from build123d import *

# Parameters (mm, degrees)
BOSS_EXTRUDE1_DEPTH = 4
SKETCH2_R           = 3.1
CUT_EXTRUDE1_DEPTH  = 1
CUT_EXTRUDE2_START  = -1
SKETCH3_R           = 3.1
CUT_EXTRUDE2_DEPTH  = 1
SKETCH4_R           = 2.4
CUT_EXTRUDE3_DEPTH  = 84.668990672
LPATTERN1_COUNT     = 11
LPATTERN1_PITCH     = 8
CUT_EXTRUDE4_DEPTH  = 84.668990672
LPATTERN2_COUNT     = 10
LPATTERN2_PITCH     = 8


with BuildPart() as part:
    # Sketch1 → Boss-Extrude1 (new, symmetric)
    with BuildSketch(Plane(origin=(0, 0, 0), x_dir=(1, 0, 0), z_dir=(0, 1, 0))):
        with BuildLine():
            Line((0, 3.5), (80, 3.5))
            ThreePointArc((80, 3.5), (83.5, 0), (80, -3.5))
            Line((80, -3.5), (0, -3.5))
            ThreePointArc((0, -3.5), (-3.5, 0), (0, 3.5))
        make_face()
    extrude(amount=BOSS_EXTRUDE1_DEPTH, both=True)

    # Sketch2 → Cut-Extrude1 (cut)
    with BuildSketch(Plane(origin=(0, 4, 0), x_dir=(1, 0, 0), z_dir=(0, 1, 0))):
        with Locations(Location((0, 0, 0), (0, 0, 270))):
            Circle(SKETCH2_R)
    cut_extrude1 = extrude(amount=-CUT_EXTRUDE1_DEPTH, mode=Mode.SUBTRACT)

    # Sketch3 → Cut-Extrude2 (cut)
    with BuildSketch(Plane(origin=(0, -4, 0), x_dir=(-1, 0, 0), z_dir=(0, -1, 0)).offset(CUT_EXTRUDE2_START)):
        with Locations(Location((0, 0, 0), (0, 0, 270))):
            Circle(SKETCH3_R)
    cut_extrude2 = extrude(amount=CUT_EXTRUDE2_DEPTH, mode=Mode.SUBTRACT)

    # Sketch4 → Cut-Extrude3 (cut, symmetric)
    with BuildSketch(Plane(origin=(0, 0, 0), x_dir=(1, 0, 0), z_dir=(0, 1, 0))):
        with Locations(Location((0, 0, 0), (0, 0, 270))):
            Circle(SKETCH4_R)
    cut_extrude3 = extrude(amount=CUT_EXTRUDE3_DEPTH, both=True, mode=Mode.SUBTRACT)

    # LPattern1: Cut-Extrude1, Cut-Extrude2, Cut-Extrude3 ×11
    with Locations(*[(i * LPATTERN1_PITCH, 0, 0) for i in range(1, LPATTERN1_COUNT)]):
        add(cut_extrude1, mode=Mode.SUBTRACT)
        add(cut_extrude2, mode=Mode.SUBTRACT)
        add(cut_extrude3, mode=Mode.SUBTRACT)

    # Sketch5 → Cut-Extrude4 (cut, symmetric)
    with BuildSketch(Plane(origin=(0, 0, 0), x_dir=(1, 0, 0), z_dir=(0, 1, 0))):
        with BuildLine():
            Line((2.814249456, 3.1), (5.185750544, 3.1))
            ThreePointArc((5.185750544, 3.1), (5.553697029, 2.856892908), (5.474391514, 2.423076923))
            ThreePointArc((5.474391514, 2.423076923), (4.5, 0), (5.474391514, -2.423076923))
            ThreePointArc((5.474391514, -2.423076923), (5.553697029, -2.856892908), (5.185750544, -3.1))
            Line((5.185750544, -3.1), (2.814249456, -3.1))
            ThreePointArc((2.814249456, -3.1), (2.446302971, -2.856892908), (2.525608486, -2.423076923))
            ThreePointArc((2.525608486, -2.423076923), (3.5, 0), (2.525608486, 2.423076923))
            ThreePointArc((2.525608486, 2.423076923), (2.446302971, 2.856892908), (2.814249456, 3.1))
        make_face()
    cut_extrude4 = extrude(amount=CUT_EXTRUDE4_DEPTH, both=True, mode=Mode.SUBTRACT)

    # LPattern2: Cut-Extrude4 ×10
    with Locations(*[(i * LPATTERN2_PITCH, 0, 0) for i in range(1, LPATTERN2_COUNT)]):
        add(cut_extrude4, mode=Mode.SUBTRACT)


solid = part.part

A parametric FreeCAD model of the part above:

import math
import FreeCAD as App
import Part
import Sketcher
Q = App.Units.Quantity

doc = App.newDocument("Part")
body = doc.addObject("PartDesign::Body", "Body")

sketch1 = body.newObject("Sketcher::SketchObject", "Sketch")
sketch1.AttachmentSupport = (doc.getObject("XZ_Plane"), [""])
sketch1.MapMode = "FlatFace"
sketch1.addGeometry([
    Part.LineSegment(App.Vector(80, -3.5, 0), App.Vector(0, -3.5, 0)),
    Part.ArcOfCircle(Part.Circle(App.Vector(0, 0, 0), App.Vector(0, 0, 1), 3.5), math.radians(90), math.radians(270)),
    Part.LineSegment(App.Vector(0, 3.5, 0), App.Vector(80, 3.5, 0)),
    Part.ArcOfCircle(Part.Circle(App.Vector(80, 0, 0), App.Vector(0, 0, 1), 3.5), math.radians(-90), math.radians(90)),
], False)
sketch1.addConstraint([
    Sketcher.Constraint("Tangent", 0, 2, 1, 2),
    Sketcher.Constraint("Tangent", 1, 1, 2, 1),
    Sketcher.Constraint("Tangent", 2, 2, 3, 2),
    Sketcher.Constraint("Tangent", 3, 1, 0, 1),
    Sketcher.Constraint("Horizontal", 0),
    Sketcher.Constraint("Horizontal", 2),
    Sketcher.Constraint("Coincident", 1, 3, -1, 1),
    Sketcher.Constraint("Radius", 1, Q("3.5 mm")),
    Sketcher.Constraint("DistanceX", 0, 2, 0, 1, Q("80 mm")),
])
pad1 = body.newObject("PartDesign::Pad", "Pad")
pad1.Profile = sketch1
pad1.Length = 8
pad1.Midplane = True

sketch2 = body.newObject("Sketcher::SketchObject", "Sketch001")
sketch2.AttachmentSupport = (doc.getObject("XZ_Plane"), [""])
sketch2.MapMode = "FlatFace"
sketch2.AttachmentOffset = App.Placement(App.Vector(0, 0, -4), App.Rotation())
sketch2.addGeometry(Part.Circle(App.Vector(0, 0, 0), App.Vector(0, 0, 1), 3.1), False)
sketch2.addConstraint([
    Sketcher.Constraint("Coincident", 0, 3, -1, 1),
    Sketcher.Constraint("Diameter", 0, Q("6.2 mm")),
])
pocket1 = body.newObject("PartDesign::Pocket", "Pocket")
pocket1.Profile = sketch2
pocket1.Length = 1
pocket1.Reversed = True

sketch3 = body.newObject("Sketcher::SketchObject", "Sketch002")
sketch3.AttachmentSupport = (doc.getObject("XZ_Plane"), [""])
sketch3.MapMode = "FlatFace"
sketch3.AttachmentOffset = App.Placement(App.Vector(0, 0, 3), App.Rotation())
sketch3.addGeometry(Part.Circle(App.Vector(0, 0, 0), App.Vector(0, 0, 1), 3.1), False)
sketch3.addConstraint([
    Sketcher.Constraint("Coincident", 0, 3, -1, 1),
    Sketcher.Constraint("Diameter", 0, Q("6.2 mm")),
])
pocket2 = body.newObject("PartDesign::Pocket", "Pocket001")
pocket2.Profile = sketch3
pocket2.Length = 1
pocket2.Reversed = True

sketch4 = body.newObject("Sketcher::SketchObject", "Sketch003")
sketch4.AttachmentSupport = (doc.getObject("XZ_Plane"), [""])
sketch4.MapMode = "FlatFace"
sketch4.addGeometry(Part.Circle(App.Vector(0, 0, 0), App.Vector(0, 0, 1), 2.4), False)
sketch4.addConstraint([
    Sketcher.Constraint("Coincident", 0, 3, -1, 1),
    Sketcher.Constraint("Diameter", 0, Q("4.8 mm")),
])
pocket3 = body.newObject("PartDesign::Pocket", "Pocket002")
pocket3.Profile = sketch4
pocket3.Length = 169.337981
pocket3.Midplane = True
doc.recompute()

linearpattern = body.newObject("PartDesign::LinearPattern", "LinearPattern")
linearpattern.Originals = [pocket1, pocket2, pocket3]
linearpattern.Direction = (doc.getObject("X_Axis"), [""])
linearpattern.Mode = "offset"
linearpattern.Offset = 8
linearpattern.Occurrences = 11
body.Tip = linearpattern

sketch5 = body.newObject("Sketcher::SketchObject", "Sketch004")
sketch5.AttachmentSupport = (doc.getObject("XZ_Plane"), [""])
sketch5.MapMode = "FlatFace"
sketch5.addGeometry([
    Part.LineSegment(App.Vector(5.19, -3.1, 0), App.Vector(2.81, -3.1, 0)),
    Part.ArcOfCircle(Part.Circle(App.Vector(2.81, -2.7, 0), App.Vector(0, 0, 1), 0.4), math.radians(136), math.radians(270)),
    Part.ArcOfCircle(Part.Circle(App.Vector(0, 0, 0), App.Vector(0, 0, 1), 3.5), math.radians(-44), math.radians(44)),
    Part.ArcOfCircle(Part.Circle(App.Vector(2.81, 2.7, 0), App.Vector(0, 0, 1), 0.4), math.radians(90), math.radians(224)),
    Part.LineSegment(App.Vector(2.81, 3.1, 0), App.Vector(5.19, 3.1, 0)),
    Part.ArcOfCircle(Part.Circle(App.Vector(5.19, 2.7, 0), App.Vector(0, 0, 1), 0.4), math.radians(-44), math.radians(90)),
    Part.ArcOfCircle(Part.Circle(App.Vector(8, 0, 0), App.Vector(0, 0, 1), 3.5), math.radians(136), math.radians(224)),
    Part.ArcOfCircle(Part.Circle(App.Vector(5.19, -2.7, 0), App.Vector(0, 0, 1), 0.4), math.radians(-90), math.radians(44)),
], False)
sketch5.addConstraint([
    Sketcher.Constraint("Tangent", 0, 2, 1, 2),
    Sketcher.Constraint("Tangent", 1, 1, 2, 1),
    Sketcher.Constraint("Tangent", 2, 2, 3, 2),
    Sketcher.Constraint("Tangent", 3, 1, 4, 1),
    Sketcher.Constraint("Tangent", 4, 2, 5, 2),
    Sketcher.Constraint("Tangent", 5, 1, 6, 1),
    Sketcher.Constraint("Tangent", 6, 2, 7, 2),
    Sketcher.Constraint("Tangent", 7, 1, 0, 1),
    Sketcher.Constraint("Horizontal", 0),
    Sketcher.Constraint("Horizontal", 4),
    Sketcher.Constraint("Coincident", 2, 3, -1, 1),
    Sketcher.Constraint("Equal", 1, 3),
    Sketcher.Constraint("Equal", 3, 5),
    Sketcher.Constraint("Equal", 2, 6),
    Sketcher.Constraint("Equal", 5, 7),
    Sketcher.Constraint("Symmetric", 5, 3, 7, 3, -1),
    Sketcher.Constraint("Radius", 1, Q("0.4 mm")),
    Sketcher.Constraint("Radius", 2, Q("3.5 mm")),
    Sketcher.Constraint("DistanceX", -1, 1, 6, 3, Q("8 mm")),
    Sketcher.Constraint("DistanceY", 1, 3, -1, 1, Q("2.7 mm")),
])
pocket4 = body.newObject("PartDesign::Pocket", "Pocket003")
pocket4.Profile = sketch5
pocket4.Length = 169.337981
pocket4.Midplane = True
doc.recompute()

linearpattern2 = body.newObject("PartDesign::LinearPattern", "LinearPattern001")
linearpattern2.Originals = [pocket4]
linearpattern2.Direction = (doc.getObject("X_Axis"), [""])
linearpattern2.Mode = "offset"
linearpattern2.Offset = 8
linearpattern2.Occurrences = 10
body.Tip = linearpattern2

doc.recompute()
